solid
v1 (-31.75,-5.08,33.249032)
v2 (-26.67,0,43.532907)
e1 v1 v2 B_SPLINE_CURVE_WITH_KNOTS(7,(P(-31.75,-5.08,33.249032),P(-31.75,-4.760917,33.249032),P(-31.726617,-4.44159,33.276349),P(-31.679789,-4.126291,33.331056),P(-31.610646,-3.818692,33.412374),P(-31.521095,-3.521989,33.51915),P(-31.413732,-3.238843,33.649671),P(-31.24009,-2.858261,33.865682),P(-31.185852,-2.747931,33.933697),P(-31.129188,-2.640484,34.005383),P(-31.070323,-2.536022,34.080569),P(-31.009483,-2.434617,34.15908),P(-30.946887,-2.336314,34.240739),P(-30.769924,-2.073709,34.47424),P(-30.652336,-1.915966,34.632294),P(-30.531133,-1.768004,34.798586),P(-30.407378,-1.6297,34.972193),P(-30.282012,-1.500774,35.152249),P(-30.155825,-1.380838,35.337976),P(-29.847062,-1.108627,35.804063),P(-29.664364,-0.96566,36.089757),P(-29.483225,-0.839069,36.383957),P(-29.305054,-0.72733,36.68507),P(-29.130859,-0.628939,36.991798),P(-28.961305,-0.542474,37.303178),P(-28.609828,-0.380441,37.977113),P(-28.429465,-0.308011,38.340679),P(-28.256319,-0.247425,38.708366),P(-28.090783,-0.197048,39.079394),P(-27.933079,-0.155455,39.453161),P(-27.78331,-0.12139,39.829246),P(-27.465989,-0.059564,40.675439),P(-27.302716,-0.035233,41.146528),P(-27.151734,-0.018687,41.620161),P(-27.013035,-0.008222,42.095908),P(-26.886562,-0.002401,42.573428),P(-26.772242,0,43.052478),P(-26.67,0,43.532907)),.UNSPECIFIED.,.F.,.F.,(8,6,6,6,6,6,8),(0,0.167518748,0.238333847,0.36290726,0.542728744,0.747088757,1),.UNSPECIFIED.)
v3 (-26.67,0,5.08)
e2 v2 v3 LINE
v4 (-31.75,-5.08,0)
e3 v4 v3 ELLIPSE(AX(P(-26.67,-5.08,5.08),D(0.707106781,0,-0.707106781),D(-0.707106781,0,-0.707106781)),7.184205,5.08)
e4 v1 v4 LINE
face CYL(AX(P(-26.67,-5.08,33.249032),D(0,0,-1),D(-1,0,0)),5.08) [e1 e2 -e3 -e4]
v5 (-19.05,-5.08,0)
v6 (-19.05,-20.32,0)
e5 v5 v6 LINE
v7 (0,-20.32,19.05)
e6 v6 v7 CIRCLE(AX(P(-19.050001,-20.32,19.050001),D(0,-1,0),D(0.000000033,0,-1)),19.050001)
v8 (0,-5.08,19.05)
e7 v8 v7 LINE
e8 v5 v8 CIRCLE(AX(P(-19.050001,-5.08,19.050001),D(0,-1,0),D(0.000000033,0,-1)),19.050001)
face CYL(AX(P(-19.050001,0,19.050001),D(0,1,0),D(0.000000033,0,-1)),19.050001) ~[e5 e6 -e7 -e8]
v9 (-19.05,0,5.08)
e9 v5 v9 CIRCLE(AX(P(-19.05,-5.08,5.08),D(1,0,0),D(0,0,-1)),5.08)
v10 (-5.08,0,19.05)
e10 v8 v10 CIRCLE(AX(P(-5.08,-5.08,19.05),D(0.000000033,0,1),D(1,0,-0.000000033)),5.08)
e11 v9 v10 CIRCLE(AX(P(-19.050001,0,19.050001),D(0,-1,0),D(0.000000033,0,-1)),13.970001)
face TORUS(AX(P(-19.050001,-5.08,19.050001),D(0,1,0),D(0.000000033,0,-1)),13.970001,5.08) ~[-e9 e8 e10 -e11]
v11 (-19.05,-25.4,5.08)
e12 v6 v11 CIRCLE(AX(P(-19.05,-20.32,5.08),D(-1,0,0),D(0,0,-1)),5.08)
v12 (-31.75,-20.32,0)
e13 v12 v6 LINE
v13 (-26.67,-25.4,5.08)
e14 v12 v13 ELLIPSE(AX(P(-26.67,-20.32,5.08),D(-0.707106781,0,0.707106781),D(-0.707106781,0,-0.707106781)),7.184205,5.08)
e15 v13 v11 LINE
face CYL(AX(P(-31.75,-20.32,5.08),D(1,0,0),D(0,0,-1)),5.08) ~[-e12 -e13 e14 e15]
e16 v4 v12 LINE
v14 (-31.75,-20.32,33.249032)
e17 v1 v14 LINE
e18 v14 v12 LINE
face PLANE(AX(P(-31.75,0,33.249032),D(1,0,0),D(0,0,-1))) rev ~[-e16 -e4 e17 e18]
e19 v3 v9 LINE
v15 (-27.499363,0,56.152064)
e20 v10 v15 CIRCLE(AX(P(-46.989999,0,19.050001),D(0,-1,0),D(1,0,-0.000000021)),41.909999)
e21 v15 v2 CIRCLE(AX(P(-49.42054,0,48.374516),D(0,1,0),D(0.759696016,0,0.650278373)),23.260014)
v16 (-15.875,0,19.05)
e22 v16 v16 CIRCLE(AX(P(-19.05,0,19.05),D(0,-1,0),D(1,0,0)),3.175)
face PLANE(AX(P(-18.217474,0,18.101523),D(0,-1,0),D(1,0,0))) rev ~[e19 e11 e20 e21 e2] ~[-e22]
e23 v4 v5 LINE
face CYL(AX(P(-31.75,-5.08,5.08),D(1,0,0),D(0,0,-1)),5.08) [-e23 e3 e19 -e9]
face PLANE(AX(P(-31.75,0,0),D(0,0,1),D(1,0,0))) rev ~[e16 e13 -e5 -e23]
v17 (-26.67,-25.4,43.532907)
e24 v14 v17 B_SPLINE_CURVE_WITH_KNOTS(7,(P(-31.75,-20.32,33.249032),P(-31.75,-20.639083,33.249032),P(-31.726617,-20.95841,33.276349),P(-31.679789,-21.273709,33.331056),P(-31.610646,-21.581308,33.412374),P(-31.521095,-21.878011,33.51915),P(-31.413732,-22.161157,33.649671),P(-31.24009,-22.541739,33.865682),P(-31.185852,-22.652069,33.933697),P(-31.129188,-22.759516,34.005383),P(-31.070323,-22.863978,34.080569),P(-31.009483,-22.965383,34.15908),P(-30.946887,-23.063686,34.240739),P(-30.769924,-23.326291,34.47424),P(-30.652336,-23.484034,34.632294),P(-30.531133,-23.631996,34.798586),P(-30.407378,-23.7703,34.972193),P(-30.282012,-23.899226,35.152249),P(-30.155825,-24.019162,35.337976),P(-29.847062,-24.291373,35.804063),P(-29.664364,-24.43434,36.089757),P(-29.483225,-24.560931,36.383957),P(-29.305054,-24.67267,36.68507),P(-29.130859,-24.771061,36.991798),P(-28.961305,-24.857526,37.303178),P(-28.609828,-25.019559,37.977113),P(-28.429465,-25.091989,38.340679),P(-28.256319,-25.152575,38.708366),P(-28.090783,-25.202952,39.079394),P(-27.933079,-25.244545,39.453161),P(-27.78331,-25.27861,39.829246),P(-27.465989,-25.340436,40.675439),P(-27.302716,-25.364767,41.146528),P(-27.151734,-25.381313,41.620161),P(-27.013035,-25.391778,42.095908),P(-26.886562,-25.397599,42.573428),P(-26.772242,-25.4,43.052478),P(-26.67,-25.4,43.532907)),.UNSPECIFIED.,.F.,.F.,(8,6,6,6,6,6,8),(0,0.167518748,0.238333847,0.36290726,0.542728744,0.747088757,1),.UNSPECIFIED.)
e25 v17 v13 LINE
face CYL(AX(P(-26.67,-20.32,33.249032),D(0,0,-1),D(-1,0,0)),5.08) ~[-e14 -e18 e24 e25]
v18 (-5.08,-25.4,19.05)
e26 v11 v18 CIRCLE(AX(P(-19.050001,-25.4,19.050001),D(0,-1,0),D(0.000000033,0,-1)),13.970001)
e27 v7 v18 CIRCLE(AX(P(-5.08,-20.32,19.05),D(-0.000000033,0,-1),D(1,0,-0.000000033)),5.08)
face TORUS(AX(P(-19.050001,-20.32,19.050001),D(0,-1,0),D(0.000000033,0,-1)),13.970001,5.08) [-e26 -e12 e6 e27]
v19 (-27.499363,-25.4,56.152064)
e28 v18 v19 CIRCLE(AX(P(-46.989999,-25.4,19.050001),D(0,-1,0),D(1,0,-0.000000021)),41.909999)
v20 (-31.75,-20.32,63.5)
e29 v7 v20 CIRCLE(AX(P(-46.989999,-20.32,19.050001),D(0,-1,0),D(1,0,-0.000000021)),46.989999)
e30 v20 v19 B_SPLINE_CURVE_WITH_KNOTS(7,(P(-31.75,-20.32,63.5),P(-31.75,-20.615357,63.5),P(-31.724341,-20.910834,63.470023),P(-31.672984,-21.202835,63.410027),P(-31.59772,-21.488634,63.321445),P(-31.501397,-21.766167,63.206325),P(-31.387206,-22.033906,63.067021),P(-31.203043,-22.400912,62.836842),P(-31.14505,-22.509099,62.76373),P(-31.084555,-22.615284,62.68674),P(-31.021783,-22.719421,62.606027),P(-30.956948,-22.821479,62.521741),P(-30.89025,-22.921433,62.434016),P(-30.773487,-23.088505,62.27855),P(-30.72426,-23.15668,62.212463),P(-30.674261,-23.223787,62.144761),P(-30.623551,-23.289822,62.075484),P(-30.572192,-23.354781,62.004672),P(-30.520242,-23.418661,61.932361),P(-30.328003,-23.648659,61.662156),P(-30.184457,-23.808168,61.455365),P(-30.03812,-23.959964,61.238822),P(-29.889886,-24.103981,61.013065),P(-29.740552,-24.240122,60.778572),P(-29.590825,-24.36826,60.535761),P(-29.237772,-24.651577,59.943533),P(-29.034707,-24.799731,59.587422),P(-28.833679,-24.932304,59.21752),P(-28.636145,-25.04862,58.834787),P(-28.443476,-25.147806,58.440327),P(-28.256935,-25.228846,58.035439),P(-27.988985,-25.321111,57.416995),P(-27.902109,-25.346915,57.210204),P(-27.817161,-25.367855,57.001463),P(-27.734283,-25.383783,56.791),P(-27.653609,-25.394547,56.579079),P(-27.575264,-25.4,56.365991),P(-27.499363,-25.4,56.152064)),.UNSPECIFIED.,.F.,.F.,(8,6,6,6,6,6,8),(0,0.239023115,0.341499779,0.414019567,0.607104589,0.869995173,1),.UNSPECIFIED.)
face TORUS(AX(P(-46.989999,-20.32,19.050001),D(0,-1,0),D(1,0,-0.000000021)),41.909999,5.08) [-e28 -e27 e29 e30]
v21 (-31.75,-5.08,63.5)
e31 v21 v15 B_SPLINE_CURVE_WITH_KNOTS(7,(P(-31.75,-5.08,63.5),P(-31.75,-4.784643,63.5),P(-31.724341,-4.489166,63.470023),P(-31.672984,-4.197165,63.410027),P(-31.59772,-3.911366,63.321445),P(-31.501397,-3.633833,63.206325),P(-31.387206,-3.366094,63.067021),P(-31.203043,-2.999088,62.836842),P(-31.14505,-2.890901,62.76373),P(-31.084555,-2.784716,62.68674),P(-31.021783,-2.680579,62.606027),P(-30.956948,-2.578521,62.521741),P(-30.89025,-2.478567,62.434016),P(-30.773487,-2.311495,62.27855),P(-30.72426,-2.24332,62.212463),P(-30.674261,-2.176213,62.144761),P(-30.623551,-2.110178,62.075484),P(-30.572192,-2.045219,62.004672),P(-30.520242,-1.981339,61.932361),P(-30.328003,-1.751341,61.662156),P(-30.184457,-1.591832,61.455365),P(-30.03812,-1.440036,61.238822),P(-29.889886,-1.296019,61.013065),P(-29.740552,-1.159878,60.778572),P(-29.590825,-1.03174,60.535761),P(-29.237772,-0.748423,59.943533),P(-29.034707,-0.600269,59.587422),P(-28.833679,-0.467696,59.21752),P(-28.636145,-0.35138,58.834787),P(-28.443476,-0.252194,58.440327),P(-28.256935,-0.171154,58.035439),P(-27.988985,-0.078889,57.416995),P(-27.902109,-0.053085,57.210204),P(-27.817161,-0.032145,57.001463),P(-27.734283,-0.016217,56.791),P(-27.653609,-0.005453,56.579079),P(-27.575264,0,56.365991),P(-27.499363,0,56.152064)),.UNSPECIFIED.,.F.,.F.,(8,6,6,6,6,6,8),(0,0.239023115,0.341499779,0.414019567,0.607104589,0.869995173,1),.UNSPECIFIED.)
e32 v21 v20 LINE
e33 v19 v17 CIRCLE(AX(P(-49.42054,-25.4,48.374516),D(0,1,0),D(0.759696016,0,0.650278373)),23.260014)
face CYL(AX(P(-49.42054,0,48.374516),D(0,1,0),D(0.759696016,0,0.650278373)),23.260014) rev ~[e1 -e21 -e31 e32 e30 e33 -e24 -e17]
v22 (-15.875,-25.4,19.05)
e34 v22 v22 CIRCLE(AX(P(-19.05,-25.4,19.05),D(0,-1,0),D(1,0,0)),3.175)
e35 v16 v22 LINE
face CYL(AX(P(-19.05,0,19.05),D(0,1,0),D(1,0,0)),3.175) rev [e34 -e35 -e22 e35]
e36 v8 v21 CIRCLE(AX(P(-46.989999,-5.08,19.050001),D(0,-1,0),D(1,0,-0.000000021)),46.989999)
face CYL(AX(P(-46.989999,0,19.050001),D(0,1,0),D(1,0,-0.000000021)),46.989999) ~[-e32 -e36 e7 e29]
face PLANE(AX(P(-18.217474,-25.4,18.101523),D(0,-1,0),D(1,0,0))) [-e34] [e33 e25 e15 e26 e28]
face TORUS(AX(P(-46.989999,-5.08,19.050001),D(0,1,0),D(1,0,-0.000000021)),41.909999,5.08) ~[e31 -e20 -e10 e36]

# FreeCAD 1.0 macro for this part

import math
import FreeCAD as App
import Part
import Sketcher

V = App.Vector
Q = App.Units.Quantity


def edges_at(feature, points):
    """Names of the edges that pass closest to the given points."""
    edges = feature.Shape.Edges
    near = lambda p: min(range(len(edges)), key=lambda i: edges[i].distToShape(Part.Vertex(*p))[0])
    return sorted({f"Edge{near(p) + 1}" for p in points})

doc = App.newDocument("Part")
body = doc.addObject("PartDesign::Body", "Body")

# Sketch on XZ plane
sketch1 = body.newObject("Sketcher::SketchObject", "Sketch")
sketch1.AttachmentSupport = (doc.getObject("XZ_Plane"), [""])
sketch1.MapMode = "FlatFace"
sketch1.addGeometry([
    Part.LineSegment(V(-31.75, 0, 0), V(-19.05, 0, 0)),  # 0
    Part.ArcOfCircle(Part.Circle(V(-19.050001, 19.050001, 0), V(0, 0, 1), 19.050001), math.radians(-89.999998), math.radians(-0.000002)),  # 1
    Part.ArcOfCircle(Part.Circle(V(-46.989999, 19.050001, 0), V(0, 0, 1), 46.989999), math.radians(-0.000001), math.radians(71.075357)),  # 2
    Part.ArcOfCircle(Part.Circle(V(-49.42054, 48.374516, 0), V(0, 0, 1), 23.260014), math.radians(-40.562593), math.radians(40.562593)),  # 3
    Part.LineSegment(V(-31.75, 33.249032, 0), V(-31.75, 0, 0)),  # 4
    Part.Circle(V(-19.05, 19.05, 0), V(0, 0, 1), 3.175),  # 5
], False)
sketch1.addConstraint([
    Sketcher.Constraint("Tangent", 0, 2, 1, 1),
    Sketcher.Constraint("Tangent", 1, 2, 2, 1),
    Sketcher.Constraint("Coincident", 2, 2, 3, 2),
    Sketcher.Constraint("Coincident", 3, 1, 4, 1),
    Sketcher.Constraint("Coincident", 4, 2, 0, 1),
    Sketcher.Constraint("Horizontal", 0),
    Sketcher.Constraint("Vertical", 4),
    Sketcher.Constraint("Coincident", 5, 3, 1, 3),
    Sketcher.Constraint("PointOnObject", 0, 2, -1),
    Sketcher.Constraint("PointOnObject", 1, 2, -2),
    Sketcher.Constraint("Horizontal", 1, 3, 2, 3),
    Sketcher.Constraint("Vertical", 2, 2, 3, 1),
    Sketcher.Constraint("Diameter", 5, Q("0.25 in")),
    Sketcher.Constraint("Radius", 1, Q("0.75 in")),
    Sketcher.Constraint("Radius", 2, Q("1.8499999 in")),
    Sketcher.Constraint("DistanceX", 0, 1, 0, 2, Q("0.5 in")),
    Sketcher.Constraint("Radius", 3, Q("23.260014 mm")),
    Sketcher.Constraint("DistanceY", 4, 2, 4, 1, Q("33.249032 mm")),
])
pad1 = body.newObject("PartDesign::Pad", "Pad")
pad1.Profile = sketch1
pad1.Length = Q("1 in")
doc.recompute()

fillet = body.newObject("PartDesign::Fillet", "Fillet")
fillet.Base = (pad1, edges_at(pad1, [(-31.75, -25.4, 16.625), (-25.4, -25.4, 0)]))
fillet.Radius = Q("0.2 in")
doc.recompute()

fillet2 = body.newObject("PartDesign::Fillet", "Fillet001")
fillet2.Base = (fillet, edges_at(fillet, [(-31.75, 0, 16.625), (-25.4, 0, 0)]))
fillet2.Radius = Q("0.2 in")

doc.recompute()
